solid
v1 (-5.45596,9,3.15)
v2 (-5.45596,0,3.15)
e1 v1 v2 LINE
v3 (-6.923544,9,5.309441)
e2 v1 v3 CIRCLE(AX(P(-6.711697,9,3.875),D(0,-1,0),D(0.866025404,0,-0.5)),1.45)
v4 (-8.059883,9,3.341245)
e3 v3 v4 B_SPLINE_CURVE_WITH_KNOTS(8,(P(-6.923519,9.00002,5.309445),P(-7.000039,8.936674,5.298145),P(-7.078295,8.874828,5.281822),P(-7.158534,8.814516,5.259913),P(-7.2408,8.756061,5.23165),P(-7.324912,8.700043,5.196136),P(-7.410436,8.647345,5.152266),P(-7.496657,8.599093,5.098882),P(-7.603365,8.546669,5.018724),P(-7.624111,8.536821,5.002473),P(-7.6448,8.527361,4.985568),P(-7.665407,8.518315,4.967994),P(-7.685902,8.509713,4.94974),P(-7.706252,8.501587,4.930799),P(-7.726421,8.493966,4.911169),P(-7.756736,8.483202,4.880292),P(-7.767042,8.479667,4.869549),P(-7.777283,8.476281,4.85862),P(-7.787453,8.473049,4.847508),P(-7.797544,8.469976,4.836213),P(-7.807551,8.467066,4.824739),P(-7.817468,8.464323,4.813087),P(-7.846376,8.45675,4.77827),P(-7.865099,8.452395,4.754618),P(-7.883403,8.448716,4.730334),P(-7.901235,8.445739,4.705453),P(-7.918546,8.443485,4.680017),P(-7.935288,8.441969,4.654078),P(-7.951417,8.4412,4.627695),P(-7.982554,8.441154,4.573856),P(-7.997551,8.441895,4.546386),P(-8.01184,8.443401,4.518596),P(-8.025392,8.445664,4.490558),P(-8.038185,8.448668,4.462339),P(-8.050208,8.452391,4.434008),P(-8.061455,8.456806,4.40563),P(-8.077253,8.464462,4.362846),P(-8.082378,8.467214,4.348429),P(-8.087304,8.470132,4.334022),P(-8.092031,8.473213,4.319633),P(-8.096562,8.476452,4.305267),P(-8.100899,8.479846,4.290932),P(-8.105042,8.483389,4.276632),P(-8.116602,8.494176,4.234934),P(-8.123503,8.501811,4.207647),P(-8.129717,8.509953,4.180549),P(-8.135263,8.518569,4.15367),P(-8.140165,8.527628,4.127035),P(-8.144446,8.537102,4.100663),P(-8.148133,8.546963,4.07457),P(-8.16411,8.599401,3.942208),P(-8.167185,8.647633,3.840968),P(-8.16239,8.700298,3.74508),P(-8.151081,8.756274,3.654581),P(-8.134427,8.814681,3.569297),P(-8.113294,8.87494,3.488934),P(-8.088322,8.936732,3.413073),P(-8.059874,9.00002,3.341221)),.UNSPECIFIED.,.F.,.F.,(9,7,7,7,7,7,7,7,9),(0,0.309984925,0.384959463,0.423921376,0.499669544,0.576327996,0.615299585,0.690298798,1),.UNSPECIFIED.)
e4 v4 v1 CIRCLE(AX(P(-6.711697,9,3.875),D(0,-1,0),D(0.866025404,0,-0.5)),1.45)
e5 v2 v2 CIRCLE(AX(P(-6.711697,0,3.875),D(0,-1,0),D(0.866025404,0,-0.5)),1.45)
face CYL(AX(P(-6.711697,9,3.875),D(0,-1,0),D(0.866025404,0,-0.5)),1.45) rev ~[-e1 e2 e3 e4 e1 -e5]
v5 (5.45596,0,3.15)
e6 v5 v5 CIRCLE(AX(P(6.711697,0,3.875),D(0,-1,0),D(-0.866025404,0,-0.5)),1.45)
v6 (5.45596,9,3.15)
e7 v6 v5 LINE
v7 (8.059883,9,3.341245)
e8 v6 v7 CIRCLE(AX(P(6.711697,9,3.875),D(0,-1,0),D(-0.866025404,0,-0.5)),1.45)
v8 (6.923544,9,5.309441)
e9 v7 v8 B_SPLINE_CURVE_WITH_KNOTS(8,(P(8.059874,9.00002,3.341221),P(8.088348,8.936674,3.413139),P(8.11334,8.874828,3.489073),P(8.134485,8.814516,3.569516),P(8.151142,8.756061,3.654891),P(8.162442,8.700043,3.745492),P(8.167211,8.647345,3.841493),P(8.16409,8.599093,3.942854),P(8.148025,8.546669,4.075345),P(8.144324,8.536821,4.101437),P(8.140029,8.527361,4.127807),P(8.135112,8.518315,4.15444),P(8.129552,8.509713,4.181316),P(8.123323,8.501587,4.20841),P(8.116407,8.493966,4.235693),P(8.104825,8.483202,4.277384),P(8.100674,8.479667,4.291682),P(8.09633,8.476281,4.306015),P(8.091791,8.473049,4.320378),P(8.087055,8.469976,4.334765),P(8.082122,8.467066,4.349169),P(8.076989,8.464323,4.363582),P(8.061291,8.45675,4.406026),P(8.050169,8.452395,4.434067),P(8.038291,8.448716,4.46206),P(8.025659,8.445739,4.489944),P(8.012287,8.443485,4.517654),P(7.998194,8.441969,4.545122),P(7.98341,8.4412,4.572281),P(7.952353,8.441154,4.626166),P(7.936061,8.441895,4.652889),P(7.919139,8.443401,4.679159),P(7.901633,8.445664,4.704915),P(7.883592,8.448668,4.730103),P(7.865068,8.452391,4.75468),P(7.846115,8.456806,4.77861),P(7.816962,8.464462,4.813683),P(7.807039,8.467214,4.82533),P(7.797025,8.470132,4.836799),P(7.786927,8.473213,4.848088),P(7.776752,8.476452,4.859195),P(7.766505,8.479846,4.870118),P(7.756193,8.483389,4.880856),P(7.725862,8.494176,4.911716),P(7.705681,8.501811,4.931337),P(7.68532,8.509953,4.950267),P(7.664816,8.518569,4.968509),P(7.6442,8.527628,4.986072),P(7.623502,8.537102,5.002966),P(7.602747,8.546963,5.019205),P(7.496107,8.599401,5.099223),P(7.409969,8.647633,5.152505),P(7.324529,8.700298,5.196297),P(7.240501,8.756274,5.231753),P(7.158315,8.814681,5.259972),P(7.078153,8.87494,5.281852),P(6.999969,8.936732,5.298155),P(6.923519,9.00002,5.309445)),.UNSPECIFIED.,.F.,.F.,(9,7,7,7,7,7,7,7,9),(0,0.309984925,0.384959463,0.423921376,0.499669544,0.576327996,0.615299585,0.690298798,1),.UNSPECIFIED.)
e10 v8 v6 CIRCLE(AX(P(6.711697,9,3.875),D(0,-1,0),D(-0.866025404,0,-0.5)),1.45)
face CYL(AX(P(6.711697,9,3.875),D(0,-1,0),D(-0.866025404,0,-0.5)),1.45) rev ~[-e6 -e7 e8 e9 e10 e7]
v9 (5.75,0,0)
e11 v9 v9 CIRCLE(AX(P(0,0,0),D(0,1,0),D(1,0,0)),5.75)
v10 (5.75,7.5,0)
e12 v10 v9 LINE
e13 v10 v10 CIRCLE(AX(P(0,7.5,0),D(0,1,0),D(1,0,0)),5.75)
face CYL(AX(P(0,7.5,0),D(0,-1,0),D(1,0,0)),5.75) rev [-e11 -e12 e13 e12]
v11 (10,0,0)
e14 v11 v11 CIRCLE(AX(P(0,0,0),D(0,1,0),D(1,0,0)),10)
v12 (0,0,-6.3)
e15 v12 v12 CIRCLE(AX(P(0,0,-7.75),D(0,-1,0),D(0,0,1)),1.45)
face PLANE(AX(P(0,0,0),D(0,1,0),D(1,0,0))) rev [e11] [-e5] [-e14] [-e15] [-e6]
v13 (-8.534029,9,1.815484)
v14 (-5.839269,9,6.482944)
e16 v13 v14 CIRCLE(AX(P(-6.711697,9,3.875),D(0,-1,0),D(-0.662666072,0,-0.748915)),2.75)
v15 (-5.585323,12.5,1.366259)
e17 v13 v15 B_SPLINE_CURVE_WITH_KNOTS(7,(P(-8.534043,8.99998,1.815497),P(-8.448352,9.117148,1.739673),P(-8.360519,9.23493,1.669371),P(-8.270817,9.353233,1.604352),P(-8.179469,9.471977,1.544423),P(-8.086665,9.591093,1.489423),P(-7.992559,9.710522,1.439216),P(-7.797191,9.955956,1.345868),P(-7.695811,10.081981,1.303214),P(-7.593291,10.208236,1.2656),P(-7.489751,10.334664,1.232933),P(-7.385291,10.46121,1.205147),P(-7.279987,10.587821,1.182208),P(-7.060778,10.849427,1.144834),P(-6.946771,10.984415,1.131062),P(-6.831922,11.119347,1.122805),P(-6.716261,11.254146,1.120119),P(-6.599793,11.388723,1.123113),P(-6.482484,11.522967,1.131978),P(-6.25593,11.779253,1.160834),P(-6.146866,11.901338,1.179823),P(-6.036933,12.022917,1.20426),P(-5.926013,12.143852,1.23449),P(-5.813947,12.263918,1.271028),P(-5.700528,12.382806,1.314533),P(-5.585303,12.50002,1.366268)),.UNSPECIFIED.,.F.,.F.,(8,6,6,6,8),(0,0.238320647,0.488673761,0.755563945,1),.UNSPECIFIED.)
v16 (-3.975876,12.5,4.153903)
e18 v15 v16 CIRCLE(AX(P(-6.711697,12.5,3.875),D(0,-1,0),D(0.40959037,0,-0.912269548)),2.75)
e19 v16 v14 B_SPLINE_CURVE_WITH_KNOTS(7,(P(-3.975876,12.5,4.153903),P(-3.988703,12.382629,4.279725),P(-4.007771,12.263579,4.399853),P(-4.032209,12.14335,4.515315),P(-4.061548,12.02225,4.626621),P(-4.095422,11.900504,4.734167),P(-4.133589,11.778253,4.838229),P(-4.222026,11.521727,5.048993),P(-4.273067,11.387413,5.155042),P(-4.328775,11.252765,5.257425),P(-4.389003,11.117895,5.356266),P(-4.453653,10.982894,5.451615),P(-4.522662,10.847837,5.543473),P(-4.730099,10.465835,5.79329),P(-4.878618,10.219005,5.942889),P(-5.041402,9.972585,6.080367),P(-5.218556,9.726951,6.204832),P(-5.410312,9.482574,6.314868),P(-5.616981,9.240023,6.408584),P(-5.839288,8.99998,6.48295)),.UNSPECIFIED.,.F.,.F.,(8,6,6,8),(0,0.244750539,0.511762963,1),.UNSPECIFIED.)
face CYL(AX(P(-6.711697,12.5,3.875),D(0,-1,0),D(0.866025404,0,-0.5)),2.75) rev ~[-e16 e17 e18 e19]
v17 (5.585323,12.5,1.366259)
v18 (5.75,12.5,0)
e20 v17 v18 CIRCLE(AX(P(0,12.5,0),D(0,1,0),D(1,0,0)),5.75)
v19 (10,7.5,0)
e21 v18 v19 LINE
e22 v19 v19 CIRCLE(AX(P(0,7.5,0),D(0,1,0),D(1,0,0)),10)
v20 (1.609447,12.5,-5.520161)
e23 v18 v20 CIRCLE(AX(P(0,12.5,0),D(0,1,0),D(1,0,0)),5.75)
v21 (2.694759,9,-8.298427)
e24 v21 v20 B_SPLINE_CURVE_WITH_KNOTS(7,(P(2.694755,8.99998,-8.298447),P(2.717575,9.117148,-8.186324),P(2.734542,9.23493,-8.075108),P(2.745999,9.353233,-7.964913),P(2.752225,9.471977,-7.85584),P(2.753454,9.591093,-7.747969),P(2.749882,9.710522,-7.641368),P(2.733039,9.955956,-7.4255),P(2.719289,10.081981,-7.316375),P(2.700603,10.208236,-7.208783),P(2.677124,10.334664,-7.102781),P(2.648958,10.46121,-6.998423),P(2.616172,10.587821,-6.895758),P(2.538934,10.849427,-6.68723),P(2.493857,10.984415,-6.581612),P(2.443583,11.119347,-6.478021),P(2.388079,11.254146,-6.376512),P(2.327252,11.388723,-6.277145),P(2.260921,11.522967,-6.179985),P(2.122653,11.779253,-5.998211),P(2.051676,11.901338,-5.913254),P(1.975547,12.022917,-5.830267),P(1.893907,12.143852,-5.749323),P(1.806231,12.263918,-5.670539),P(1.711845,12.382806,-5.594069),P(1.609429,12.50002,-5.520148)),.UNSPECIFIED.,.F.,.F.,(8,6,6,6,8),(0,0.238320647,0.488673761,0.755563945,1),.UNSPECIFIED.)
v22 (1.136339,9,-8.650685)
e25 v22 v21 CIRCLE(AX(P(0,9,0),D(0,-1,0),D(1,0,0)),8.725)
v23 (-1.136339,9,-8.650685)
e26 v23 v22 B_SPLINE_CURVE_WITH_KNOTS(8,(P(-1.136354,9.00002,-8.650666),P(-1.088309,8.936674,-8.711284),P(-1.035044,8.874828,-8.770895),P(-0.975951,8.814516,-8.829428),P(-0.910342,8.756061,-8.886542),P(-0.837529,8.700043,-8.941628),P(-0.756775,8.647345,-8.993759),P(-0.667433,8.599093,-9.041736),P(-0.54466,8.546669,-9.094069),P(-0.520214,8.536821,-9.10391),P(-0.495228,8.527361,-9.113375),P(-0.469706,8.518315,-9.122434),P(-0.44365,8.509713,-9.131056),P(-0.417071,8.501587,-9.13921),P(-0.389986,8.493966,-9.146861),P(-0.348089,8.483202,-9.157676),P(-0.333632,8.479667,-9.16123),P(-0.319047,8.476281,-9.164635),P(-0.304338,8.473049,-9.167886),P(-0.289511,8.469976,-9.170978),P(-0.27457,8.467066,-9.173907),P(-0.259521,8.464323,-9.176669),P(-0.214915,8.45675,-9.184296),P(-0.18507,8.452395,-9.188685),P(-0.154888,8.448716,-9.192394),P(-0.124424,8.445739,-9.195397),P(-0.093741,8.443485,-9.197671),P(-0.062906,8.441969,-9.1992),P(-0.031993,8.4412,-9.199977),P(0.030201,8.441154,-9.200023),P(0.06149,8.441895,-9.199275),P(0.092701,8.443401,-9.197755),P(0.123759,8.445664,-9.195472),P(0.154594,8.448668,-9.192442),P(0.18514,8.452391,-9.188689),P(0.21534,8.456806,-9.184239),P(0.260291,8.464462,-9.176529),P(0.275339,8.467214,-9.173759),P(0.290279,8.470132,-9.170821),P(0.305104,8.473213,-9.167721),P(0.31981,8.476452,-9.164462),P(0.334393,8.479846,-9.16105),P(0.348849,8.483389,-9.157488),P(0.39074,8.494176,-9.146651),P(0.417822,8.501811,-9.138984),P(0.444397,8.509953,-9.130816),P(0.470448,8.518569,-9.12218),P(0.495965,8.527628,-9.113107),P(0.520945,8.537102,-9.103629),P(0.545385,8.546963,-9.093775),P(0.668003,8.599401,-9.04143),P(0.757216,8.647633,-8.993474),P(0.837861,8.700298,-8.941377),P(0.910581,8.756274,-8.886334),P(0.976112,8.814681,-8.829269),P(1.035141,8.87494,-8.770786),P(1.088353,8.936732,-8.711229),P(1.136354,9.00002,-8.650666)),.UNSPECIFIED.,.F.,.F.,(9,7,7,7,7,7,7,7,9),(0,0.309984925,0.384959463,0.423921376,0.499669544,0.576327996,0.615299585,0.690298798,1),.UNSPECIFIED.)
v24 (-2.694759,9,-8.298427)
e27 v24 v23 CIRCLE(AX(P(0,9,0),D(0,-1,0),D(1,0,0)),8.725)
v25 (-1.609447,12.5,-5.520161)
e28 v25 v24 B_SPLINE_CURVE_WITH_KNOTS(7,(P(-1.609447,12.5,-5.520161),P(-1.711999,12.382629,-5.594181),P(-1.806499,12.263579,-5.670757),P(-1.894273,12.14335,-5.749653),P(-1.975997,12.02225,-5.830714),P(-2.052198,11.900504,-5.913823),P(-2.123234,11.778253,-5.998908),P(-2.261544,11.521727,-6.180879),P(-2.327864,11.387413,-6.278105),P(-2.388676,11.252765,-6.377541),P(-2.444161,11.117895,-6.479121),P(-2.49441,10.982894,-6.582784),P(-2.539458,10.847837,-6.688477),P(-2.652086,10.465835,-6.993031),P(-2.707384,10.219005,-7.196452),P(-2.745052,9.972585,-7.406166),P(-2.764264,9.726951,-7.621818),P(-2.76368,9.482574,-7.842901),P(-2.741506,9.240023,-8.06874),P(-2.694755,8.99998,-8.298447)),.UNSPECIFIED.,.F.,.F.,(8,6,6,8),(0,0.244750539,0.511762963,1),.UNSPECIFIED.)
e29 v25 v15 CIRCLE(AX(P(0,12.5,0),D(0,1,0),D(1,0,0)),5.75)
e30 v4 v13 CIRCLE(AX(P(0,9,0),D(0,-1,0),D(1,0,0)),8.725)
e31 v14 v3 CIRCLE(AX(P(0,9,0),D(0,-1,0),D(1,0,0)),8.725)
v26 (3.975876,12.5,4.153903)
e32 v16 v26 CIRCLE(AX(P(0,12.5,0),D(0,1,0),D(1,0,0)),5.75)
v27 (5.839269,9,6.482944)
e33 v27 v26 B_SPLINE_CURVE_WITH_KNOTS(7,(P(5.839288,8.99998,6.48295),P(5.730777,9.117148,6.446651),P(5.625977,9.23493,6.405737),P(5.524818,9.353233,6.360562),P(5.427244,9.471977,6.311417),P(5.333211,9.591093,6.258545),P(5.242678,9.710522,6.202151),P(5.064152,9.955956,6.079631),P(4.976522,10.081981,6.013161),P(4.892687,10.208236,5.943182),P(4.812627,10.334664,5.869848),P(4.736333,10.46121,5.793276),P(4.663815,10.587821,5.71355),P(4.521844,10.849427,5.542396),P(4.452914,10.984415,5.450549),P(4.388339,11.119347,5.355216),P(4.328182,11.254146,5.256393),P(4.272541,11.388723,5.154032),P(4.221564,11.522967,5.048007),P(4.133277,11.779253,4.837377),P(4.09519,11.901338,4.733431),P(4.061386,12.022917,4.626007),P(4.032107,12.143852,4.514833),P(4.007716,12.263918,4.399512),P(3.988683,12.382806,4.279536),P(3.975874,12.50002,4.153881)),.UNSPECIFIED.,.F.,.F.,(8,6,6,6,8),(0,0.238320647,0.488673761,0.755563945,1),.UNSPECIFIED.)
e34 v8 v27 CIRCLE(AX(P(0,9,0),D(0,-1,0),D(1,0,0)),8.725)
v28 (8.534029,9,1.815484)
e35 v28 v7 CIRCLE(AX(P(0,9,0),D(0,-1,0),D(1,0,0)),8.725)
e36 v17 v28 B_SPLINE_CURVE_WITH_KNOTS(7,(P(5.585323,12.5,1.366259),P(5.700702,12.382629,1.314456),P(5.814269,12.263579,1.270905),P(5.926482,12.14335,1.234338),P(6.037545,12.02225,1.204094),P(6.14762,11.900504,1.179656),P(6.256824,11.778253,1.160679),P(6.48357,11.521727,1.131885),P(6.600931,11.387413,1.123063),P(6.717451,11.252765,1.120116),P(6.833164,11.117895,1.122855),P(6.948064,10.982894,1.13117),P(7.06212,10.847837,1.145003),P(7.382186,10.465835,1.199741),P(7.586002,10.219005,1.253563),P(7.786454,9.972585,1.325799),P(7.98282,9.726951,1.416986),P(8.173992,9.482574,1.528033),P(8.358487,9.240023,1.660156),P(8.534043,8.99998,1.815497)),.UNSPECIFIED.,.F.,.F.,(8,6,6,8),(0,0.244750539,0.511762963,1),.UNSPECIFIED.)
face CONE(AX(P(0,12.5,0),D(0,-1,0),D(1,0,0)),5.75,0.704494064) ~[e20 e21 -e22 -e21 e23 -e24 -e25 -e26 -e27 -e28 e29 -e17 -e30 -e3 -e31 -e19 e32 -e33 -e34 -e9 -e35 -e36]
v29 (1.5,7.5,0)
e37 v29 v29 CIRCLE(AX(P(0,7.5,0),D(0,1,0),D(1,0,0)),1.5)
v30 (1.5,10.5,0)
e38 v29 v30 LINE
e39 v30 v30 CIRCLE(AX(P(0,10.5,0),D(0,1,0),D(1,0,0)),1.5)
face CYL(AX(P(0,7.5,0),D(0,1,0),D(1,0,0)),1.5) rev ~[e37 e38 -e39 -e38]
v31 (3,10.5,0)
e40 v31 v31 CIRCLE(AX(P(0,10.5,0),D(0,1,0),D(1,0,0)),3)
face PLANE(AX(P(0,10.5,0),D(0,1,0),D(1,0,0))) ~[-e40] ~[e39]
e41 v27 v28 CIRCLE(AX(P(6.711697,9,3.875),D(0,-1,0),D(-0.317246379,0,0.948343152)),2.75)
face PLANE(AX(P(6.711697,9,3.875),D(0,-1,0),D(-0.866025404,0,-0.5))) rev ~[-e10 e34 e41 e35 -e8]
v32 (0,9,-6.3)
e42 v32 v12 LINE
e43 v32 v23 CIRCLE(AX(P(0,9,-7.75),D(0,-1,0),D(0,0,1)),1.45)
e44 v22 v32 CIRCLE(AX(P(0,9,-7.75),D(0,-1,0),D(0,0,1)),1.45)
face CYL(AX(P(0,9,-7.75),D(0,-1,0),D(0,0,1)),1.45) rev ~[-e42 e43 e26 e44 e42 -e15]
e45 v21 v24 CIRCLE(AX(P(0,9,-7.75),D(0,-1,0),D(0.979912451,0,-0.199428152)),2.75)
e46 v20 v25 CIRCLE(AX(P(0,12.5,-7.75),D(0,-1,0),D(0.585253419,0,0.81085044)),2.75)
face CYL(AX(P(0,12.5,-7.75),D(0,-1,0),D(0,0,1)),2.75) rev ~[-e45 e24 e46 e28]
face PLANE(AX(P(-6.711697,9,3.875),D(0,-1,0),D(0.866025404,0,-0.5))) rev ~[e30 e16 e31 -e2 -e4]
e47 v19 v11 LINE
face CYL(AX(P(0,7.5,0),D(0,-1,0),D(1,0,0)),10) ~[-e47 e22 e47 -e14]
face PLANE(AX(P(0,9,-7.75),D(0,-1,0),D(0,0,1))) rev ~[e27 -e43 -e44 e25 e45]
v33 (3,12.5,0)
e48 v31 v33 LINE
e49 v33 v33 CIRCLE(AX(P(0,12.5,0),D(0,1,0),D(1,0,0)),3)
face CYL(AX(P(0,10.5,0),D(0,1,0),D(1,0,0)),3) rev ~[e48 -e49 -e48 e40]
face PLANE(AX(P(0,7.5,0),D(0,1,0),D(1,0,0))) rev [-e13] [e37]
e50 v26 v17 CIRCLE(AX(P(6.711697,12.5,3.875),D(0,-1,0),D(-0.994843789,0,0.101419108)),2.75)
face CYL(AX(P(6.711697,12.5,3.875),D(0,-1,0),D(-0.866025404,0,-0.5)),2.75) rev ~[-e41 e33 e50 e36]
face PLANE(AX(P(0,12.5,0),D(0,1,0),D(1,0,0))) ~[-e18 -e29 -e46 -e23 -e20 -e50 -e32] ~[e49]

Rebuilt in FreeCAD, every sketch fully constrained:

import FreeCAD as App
import Part
import Sketcher
Q = App.Units.Quantity

doc = App.newDocument("Part")
body = doc.addObject("PartDesign::Body", "Body")

sketch1 = body.newObject("Sketcher::SketchObject", "Sketch")
sketch1.AttachmentSupport = (doc.getObject("XY_Plane"), [""])
sketch1.MapMode = "FlatFace"
sketch1.addGeometry([
    Part.LineSegment(App.Vector(1.5, 10.5, 0), App.Vector(1.5, 7.5, 0)),
    Part.LineSegment(App.Vector(1.5, 7.5, 0), App.Vector(5.75, 7.5, 0)),
    Part.LineSegment(App.Vector(5.75, 7.5, 0), App.Vector(5.75, 0, 0)),
    Part.LineSegment(App.Vector(5.75, 0, 0), App.Vector(10, 0, 0)),
    Part.LineSegment(App.Vector(10, 0, 0), App.Vector(10, 7.5, 0)),
    Part.LineSegment(App.Vector(10, 7.5, 0), App.Vector(5.75, 12.5, 0)),
    Part.LineSegment(App.Vector(5.75, 12.5, 0), App.Vector(3, 12.5, 0)),
    Part.LineSegment(App.Vector(3, 12.5, 0), App.Vector(3, 10.5, 0)),
    Part.LineSegment(App.Vector(3, 10.5, 0), App.Vector(1.5, 10.5, 0)),
], False)
sketch1.addConstraint([
    Sketcher.Constraint("Coincident", 0, 2, 1, 1),
    Sketcher.Constraint("Coincident", 1, 2, 2, 1),
    Sketcher.Constraint("Coincident", 2, 2, 3, 1),
    Sketcher.Constraint("Coincident", 3, 2, 4, 1),
    Sketcher.Constraint("Coincident", 4, 2, 5, 1),
    Sketcher.Constraint("Coincident", 5, 2, 6, 1),
    Sketcher.Constraint("Coincident", 6, 2, 7, 1),
    Sketcher.Constraint("Coincident", 7, 2, 8, 1),
    Sketcher.Constraint("Coincident", 8, 2, 0, 1),
    Sketcher.Constraint("Vertical", 0),
    Sketcher.Constraint("Horizontal", 1),
    Sketcher.Constraint("Vertical", 2),
    Sketcher.Constraint("Horizontal", 3),
    Sketcher.Constraint("Vertical", 4),
    Sketcher.Constraint("Horizontal", 6),
    Sketcher.Constraint("Vertical", 7),
    Sketcher.Constraint("Horizontal", 8),
    Sketcher.Constraint("PointOnObject", 2, 2, -1),
    Sketcher.Constraint("Horizontal", 1, 2, 4, 2),
    Sketcher.Constraint("Vertical", 2, 2, 5, 2),
    Sketcher.Constraint("Equal", 1, 3),
    Sketcher.Constraint("DistanceY", 0, 2, 0, 1, Q("3 mm")),
    Sketcher.Constraint("DistanceY", 7, 2, 7, 1, Q("2 mm")),
    Sketcher.Constraint("DistanceY", 2, 2, 2, 1, Q("7.5 mm")),
    Sketcher.Constraint("DistanceX", -1, 1, 6, 2, Q("3 mm")),
    Sketcher.Constraint("DistanceX", 8, 2, 8, 1, Q("1.5 mm")),
    Sketcher.Constraint("DistanceX", -1, 1, 3, 2, Q("10 mm")),
])
revolution = body.newObject("PartDesign::Revolution", "Revolution")
revolution.Profile = sketch1
revolution.ReferenceAxis = (sketch1, ["V_Axis"])
revolution.Angle = 360

sketch2 = body.newObject("Sketcher::SketchObject", "Sketch001")
sketch2.AttachmentSupport = (doc.getObject("XZ_Plane"), [""])
sketch2.MapMode = "FlatFace"
sketch2.AttachmentOffset = App.Placement(App.Vector(0, 0, -12.5), App.Rotation())
sketch2.addGeometry(Part.Circle(App.Vector(0, -7.75, 0), App.Vector(0, 0, 1), 1.45), False)
sketch2.addConstraint([
    Sketcher.Constraint("PointOnObject", 0, 3, -2),
    Sketcher.Constraint("Diameter", 0, Q("2.9 mm")),
    Sketcher.Constraint("DistanceY", 0, 3, -1, 1, Q("7.75 mm")),
])
doc.recompute()
hole = body.newObject("PartDesign::Hole", "Hole")
hole.Profile = sketch2
hole.ThreadType = "None"
hole.Diameter = 2.9
hole.DepthType = "ThroughAll"
hole.HoleCutType = "Counterbore"
hole.HoleCutDiameter = 5.5
hole.HoleCutDepth = 3.5
hole.Reversed = True
doc.recompute()

polarpattern = body.newObject("PartDesign::PolarPattern", "PolarPattern")
polarpattern.Originals = [hole]
polarpattern.Axis = (doc.getObject("Y_Axis"), [""])
polarpattern.Angle = 360
polarpattern.Occurrences = 3
body.Tip = polarpattern

doc.recompute()
